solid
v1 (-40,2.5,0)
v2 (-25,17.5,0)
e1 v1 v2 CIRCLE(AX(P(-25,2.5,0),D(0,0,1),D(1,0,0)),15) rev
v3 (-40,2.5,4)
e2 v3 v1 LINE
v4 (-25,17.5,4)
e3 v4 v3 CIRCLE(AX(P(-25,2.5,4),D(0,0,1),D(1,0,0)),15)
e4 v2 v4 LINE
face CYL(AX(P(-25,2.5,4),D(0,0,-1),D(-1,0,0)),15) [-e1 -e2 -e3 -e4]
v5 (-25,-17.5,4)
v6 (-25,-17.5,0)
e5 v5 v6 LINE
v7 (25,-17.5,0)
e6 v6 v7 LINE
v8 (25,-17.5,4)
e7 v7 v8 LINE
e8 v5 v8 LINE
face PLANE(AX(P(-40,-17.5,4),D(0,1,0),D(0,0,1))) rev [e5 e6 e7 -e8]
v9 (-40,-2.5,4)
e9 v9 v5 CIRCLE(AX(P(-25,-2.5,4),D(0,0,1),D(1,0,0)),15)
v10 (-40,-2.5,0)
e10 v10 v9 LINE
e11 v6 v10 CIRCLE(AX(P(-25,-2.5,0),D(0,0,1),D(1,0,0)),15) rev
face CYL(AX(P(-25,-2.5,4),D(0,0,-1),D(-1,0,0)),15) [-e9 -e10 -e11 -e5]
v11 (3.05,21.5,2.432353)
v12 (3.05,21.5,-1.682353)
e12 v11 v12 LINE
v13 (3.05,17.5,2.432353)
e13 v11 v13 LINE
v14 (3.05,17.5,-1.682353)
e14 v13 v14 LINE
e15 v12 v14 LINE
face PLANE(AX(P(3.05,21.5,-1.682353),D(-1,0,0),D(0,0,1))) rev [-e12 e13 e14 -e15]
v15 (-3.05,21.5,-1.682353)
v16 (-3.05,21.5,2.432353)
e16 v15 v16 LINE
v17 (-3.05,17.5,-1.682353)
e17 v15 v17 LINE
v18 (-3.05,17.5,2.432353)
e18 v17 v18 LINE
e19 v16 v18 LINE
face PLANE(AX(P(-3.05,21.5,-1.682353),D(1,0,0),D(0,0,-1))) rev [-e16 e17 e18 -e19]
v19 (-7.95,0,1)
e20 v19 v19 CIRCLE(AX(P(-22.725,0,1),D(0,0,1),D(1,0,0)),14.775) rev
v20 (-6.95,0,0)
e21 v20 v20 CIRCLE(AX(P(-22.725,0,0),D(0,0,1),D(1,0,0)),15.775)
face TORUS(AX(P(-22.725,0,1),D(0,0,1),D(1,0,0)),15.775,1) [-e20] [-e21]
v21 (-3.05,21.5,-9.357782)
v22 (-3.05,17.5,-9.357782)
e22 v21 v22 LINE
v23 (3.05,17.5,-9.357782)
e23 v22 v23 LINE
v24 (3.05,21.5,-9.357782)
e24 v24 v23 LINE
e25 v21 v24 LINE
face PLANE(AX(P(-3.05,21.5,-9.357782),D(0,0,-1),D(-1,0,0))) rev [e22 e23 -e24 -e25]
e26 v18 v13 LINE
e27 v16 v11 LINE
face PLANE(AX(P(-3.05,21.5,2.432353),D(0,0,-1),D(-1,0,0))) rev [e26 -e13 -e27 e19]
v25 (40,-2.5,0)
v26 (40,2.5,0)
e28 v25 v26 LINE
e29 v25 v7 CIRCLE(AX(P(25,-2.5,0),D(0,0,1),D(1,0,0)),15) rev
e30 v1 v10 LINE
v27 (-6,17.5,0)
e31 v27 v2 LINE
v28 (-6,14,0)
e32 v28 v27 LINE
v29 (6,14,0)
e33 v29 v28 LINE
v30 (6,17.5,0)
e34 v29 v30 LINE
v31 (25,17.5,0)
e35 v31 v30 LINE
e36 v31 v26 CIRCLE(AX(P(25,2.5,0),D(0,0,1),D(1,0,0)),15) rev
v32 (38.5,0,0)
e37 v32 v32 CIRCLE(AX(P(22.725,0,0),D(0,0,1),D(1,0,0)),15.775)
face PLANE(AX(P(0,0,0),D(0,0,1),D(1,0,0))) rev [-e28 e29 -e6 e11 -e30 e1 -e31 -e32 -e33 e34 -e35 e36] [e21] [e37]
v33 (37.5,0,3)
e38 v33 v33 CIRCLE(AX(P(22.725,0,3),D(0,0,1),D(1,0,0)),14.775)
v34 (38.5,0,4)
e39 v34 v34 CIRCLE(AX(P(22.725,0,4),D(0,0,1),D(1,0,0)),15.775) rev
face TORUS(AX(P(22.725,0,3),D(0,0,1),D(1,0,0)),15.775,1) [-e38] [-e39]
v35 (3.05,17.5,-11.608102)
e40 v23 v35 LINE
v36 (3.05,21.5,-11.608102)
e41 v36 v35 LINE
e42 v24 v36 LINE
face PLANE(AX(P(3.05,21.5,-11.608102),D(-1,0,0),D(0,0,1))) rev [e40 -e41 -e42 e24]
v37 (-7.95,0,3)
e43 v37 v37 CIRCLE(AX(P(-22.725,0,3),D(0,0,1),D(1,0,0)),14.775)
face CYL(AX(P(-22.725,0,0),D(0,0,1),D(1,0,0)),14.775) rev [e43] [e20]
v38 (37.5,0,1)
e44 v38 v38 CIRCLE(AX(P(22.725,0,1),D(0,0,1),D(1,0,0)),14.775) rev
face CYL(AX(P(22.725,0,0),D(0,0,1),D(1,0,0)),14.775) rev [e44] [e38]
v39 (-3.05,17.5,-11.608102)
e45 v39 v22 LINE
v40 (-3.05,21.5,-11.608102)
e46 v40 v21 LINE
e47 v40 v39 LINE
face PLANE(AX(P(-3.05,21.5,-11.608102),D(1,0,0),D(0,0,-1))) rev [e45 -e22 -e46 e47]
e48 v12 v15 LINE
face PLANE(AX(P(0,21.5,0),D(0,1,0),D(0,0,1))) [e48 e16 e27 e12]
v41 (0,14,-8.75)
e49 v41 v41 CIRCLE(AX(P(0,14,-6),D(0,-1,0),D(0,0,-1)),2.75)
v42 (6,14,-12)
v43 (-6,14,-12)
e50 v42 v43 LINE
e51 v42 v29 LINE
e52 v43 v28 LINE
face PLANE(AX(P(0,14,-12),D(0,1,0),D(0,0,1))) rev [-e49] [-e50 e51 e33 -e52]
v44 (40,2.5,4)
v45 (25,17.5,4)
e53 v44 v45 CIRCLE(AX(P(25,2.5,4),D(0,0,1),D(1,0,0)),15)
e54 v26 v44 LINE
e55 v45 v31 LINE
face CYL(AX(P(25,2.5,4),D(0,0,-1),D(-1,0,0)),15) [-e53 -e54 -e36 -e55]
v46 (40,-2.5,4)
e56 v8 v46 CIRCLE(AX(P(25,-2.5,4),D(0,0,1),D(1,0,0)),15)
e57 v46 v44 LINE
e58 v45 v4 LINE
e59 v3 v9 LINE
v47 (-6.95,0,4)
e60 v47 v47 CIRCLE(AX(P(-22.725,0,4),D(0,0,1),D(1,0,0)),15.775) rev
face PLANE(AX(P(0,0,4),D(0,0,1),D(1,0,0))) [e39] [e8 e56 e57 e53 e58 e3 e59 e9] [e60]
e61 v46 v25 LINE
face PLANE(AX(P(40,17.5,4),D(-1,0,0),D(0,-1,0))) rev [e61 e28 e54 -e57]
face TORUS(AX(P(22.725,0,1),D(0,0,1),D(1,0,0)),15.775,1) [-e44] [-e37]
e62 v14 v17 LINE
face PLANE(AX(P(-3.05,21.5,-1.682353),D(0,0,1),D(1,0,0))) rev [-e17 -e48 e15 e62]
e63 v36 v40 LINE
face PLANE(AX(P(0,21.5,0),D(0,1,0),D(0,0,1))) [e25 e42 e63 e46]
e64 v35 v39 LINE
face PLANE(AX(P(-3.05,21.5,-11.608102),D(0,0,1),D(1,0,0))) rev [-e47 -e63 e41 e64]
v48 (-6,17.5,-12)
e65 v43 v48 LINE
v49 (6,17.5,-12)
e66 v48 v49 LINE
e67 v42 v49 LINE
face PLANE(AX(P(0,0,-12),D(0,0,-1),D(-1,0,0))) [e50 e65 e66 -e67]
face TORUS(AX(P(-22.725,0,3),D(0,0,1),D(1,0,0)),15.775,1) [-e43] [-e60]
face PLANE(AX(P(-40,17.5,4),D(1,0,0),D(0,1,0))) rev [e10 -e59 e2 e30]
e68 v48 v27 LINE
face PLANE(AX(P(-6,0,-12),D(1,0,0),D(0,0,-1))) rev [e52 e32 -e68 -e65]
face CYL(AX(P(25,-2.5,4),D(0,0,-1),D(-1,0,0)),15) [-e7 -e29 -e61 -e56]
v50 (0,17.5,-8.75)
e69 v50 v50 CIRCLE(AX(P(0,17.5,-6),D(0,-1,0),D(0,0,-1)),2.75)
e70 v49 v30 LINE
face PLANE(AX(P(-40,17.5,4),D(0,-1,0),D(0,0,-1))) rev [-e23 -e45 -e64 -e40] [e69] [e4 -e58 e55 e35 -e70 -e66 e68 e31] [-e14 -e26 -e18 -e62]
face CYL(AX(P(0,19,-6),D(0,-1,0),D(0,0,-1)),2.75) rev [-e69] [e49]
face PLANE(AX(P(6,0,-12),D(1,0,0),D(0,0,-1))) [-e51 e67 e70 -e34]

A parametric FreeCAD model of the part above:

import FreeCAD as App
import Part
import Sketcher
from FreeCAD import Vector


def edges_at(feature, points):
    """Names of the edges that pass closest to the given points."""
    edges = feature.Shape.Edges
    near = lambda p: min(range(len(edges)), key=lambda i: edges[i].distToShape(Part.Vertex(*p))[0])
    return sorted({f"Edge{near(p) + 1}" for p in points})


def add_polygon(sketch, points):
    """Adds a closed chain of lines whose ends are joined by coincident constraints."""
    first, n = sketch.GeometryCount, len(points)
    for a, b in zip(points, points[1:] + points[:1]):
        sketch.addGeometry(Part.LineSegment(App.Vector(*a, 0), App.Vector(*b, 0)), False)
    for i in range(n):
        sketch.addConstraint(Sketcher.Constraint("Coincident", first + i, 2, first + (i + 1) % n, 1))

doc = App.newDocument("Part")
body = doc.addObject("PartDesign::Body", "Body")

# Sketch on XY plane
sketch1 = body.newObject("Sketcher::SketchObject", "Sketch")
sketch1.AttachmentSupport = (doc.getObject("XY_Plane"), [""])
sketch1.MapMode = "FlatFace"
add_polygon(sketch1, [(-40, 17.5), (-40, -17.5), (40, -17.5), (40, 17.5)])  # lines 0-3
sketch1.addConstraint([
    Sketcher.Constraint("Vertical", 0),
    Sketcher.Constraint("Horizontal", 1),
    Sketcher.Constraint("Vertical", 2),
    Sketcher.Constraint("Horizontal", 3),
    Sketcher.Constraint("Symmetric", 0, 2, 2, 2, -1, 1),
    Sketcher.Constraint("DistanceX", 1, 1, 1, 2, 80.0),
    Sketcher.Constraint("DistanceY", 0, 2, 0, 1, 35.0),
])
pad1 = body.newObject("PartDesign::Pad", "Pad")
pad1.Profile = sketch1
pad1.Length = 4

# Sketch on XY plane
sketch2 = body.newObject("Sketcher::SketchObject", "Sketch001")
sketch2.AttachmentSupport = (doc.getObject("XY_Plane"), [""])
sketch2.MapMode = "FlatFace"
sketch2.AttachmentOffset = App.Placement(Vector(0, 0, 4), App.Rotation())
sketch2.addGeometry(Part.Circle(Vector(22.725, 0, 0), Vector(0, 0, 1), 14.775), False)
sketch2.addConstraint([
    Sketcher.Constraint("PointOnObject", 0, 3, -1),
    Sketcher.Constraint("Diameter", 0, 29.55),
    Sketcher.Constraint("DistanceX", -1, 1, 0, 3, 22.725),
])
pocket1 = body.newObject("PartDesign::Pocket", "Pocket")
pocket1.Profile = sketch2
pocket1.Length = 4
doc.recompute()

fillet = body.newObject("PartDesign::Fillet", "Fillet")
fillet.Base = (pocket1, edges_at(pocket1, [(40, -17.5, 2), (-40, -17.5, 2)]))
fillet.Radius = 15

# Sketch on XY plane
sketch3 = body.newObject("Sketcher::SketchObject", "Sketch002")
sketch3.AttachmentSupport = (doc.getObject("XY_Plane"), [""])
sketch3.MapMode = "FlatFace"
add_polygon(sketch3, [(6, 17.5), (6, 14), (-6, 14), (-6, 17.5)])  # lines 0-3
sketch3.addConstraint([
    Sketcher.Constraint("Vertical", 0),
    Sketcher.Constraint("Horizontal", 1),
    Sketcher.Constraint("Vertical", 2),
    Sketcher.Constraint("Horizontal", 3),
    Sketcher.Constraint("DistanceX", 1, 2, 1, 1, 12.0),
    Sketcher.Constraint("DistanceY", 0, 2, 0, 1, 3.5),
    Sketcher.Constraint("DistanceX", -1, 1, 0, 2, 6.0),
    Sketcher.Constraint("DistanceY", -1, 1, 0, 2, 14.0),
])
pad2 = body.newObject("PartDesign::Pad", "Pad001")
pad2.Profile = sketch3
pad2.Length = 12
pad2.Reversed = True

# Sketch on XZ plane
sketch4 = body.newObject("Sketcher::SketchObject", "Sketch003")
sketch4.AttachmentSupport = (doc.getObject("XZ_Plane"), [""])
sketch4.MapMode = "FlatFace"
sketch4.AttachmentOffset = App.Placement(Vector(0, 0, -14), App.Rotation())
sketch4.addGeometry(Part.Circle(Vector(0, -6, 0), Vector(0, 0, 1), 2.75), False)
sketch4.addConstraint([
    Sketcher.Constraint("PointOnObject", 0, 3, -2),
    Sketcher.Constraint("Diameter", 0, 5.5),
    Sketcher.Constraint("DistanceY", 0, 3, -1, 1, 6.0),
])
pocket2 = body.newObject("PartDesign::Pocket", "Pocket001")
pocket2.Profile = sketch4
pocket2.Length = 5
doc.recompute()

fillet2 = body.newObject("PartDesign::Fillet", "Fillet001")
fillet2.Base = (pocket2, edges_at(pocket2, [(7.95, 0, 0), (7.95, 0, 4)]))
fillet2.Radius = 1
doc.recompute()

mirrored = body.newObject("PartDesign::Mirrored", "Mirrored")
mirrored.Originals = [pocket1]
mirrored.MirrorPlane = (doc.getObject("YZ_Plane"), [""])
body.Tip = mirrored
doc.recompute()

fillet3 = body.newObject("PartDesign::Fillet", "Fillet002")
fillet3.Base = (mirrored, edges_at(mirrored, [(-7.95, 0, 0), (-7.95, 0, 4)]))
fillet3.Radius = 1
doc.recompute()

fillet4 = body.newObject("PartDesign::Fillet", "Fillet003")
fillet4.Base = (fillet3, edges_at(fillet3, [(-40, 17.5, 2), (40, 17.5, 2)]))
fillet4.Radius = 15

# Sketch on XZ plane
sketch5 = body.newObject("Sketcher::SketchObject", "Sketch004")
sketch5.AttachmentSupport = (doc.getObject("XZ_Plane"), [""])
sketch5.MapMode = "FlatFace"
sketch5.AttachmentOffset = App.Placement(Vector(0, 0, -17.5), App.Rotation())
add_polygon(sketch5, [(-3.05, -11.608102), (-3.05, -9.357782), (3.05, -9.357782), (3.05, -11.608102)])  # lines 0-3
add_polygon(sketch5, [(-3.05, -1.682353), (-3.05, 2.432353), (3.05, 2.432353), (3.05, -1.682353)])  # lines 4-7
sketch5.addConstraint([
    Sketcher.Constraint("Vertical", 0),
    Sketcher.Constraint("Horizontal", 1),
    Sketcher.Constraint("Vertical", 2),
    Sketcher.Constraint("Horizontal", 3),
    Sketcher.Constraint("Vertical", 4),
    Sketcher.Constraint("Horizontal", 5),
    Sketcher.Constraint("Vertical", 6),
    Sketcher.Constraint("Horizontal", 7),
    Sketcher.Constraint("Vertical", 3, 2, 4, 2),
    Sketcher.Constraint("Vertical", 2, 2, 5, 2),
    Sketcher.Constraint("DistanceX", 1, 1, 1, 2, 6.1),
    Sketcher.Constraint("DistanceX", 0, 2, -1, 1, 3.05),
    Sketcher.Constraint("DistanceY", 0, 1, 0, 2, 2.250321),
    Sketcher.Constraint("DistanceY", 4, 1, 4, 2, 4.114706),
    Sketcher.Constraint("DistanceY", 0, 2, -1, 1, 9.357782),
    Sketcher.Constraint("DistanceY", 1, 2, 6, 2, 7.675429),
])
pad3 = body.newObject("PartDesign::Pad", "Pad002")
pad3.Profile = sketch5
pad3.Length = 4
pad3.Reversed = True

doc.recompute()
